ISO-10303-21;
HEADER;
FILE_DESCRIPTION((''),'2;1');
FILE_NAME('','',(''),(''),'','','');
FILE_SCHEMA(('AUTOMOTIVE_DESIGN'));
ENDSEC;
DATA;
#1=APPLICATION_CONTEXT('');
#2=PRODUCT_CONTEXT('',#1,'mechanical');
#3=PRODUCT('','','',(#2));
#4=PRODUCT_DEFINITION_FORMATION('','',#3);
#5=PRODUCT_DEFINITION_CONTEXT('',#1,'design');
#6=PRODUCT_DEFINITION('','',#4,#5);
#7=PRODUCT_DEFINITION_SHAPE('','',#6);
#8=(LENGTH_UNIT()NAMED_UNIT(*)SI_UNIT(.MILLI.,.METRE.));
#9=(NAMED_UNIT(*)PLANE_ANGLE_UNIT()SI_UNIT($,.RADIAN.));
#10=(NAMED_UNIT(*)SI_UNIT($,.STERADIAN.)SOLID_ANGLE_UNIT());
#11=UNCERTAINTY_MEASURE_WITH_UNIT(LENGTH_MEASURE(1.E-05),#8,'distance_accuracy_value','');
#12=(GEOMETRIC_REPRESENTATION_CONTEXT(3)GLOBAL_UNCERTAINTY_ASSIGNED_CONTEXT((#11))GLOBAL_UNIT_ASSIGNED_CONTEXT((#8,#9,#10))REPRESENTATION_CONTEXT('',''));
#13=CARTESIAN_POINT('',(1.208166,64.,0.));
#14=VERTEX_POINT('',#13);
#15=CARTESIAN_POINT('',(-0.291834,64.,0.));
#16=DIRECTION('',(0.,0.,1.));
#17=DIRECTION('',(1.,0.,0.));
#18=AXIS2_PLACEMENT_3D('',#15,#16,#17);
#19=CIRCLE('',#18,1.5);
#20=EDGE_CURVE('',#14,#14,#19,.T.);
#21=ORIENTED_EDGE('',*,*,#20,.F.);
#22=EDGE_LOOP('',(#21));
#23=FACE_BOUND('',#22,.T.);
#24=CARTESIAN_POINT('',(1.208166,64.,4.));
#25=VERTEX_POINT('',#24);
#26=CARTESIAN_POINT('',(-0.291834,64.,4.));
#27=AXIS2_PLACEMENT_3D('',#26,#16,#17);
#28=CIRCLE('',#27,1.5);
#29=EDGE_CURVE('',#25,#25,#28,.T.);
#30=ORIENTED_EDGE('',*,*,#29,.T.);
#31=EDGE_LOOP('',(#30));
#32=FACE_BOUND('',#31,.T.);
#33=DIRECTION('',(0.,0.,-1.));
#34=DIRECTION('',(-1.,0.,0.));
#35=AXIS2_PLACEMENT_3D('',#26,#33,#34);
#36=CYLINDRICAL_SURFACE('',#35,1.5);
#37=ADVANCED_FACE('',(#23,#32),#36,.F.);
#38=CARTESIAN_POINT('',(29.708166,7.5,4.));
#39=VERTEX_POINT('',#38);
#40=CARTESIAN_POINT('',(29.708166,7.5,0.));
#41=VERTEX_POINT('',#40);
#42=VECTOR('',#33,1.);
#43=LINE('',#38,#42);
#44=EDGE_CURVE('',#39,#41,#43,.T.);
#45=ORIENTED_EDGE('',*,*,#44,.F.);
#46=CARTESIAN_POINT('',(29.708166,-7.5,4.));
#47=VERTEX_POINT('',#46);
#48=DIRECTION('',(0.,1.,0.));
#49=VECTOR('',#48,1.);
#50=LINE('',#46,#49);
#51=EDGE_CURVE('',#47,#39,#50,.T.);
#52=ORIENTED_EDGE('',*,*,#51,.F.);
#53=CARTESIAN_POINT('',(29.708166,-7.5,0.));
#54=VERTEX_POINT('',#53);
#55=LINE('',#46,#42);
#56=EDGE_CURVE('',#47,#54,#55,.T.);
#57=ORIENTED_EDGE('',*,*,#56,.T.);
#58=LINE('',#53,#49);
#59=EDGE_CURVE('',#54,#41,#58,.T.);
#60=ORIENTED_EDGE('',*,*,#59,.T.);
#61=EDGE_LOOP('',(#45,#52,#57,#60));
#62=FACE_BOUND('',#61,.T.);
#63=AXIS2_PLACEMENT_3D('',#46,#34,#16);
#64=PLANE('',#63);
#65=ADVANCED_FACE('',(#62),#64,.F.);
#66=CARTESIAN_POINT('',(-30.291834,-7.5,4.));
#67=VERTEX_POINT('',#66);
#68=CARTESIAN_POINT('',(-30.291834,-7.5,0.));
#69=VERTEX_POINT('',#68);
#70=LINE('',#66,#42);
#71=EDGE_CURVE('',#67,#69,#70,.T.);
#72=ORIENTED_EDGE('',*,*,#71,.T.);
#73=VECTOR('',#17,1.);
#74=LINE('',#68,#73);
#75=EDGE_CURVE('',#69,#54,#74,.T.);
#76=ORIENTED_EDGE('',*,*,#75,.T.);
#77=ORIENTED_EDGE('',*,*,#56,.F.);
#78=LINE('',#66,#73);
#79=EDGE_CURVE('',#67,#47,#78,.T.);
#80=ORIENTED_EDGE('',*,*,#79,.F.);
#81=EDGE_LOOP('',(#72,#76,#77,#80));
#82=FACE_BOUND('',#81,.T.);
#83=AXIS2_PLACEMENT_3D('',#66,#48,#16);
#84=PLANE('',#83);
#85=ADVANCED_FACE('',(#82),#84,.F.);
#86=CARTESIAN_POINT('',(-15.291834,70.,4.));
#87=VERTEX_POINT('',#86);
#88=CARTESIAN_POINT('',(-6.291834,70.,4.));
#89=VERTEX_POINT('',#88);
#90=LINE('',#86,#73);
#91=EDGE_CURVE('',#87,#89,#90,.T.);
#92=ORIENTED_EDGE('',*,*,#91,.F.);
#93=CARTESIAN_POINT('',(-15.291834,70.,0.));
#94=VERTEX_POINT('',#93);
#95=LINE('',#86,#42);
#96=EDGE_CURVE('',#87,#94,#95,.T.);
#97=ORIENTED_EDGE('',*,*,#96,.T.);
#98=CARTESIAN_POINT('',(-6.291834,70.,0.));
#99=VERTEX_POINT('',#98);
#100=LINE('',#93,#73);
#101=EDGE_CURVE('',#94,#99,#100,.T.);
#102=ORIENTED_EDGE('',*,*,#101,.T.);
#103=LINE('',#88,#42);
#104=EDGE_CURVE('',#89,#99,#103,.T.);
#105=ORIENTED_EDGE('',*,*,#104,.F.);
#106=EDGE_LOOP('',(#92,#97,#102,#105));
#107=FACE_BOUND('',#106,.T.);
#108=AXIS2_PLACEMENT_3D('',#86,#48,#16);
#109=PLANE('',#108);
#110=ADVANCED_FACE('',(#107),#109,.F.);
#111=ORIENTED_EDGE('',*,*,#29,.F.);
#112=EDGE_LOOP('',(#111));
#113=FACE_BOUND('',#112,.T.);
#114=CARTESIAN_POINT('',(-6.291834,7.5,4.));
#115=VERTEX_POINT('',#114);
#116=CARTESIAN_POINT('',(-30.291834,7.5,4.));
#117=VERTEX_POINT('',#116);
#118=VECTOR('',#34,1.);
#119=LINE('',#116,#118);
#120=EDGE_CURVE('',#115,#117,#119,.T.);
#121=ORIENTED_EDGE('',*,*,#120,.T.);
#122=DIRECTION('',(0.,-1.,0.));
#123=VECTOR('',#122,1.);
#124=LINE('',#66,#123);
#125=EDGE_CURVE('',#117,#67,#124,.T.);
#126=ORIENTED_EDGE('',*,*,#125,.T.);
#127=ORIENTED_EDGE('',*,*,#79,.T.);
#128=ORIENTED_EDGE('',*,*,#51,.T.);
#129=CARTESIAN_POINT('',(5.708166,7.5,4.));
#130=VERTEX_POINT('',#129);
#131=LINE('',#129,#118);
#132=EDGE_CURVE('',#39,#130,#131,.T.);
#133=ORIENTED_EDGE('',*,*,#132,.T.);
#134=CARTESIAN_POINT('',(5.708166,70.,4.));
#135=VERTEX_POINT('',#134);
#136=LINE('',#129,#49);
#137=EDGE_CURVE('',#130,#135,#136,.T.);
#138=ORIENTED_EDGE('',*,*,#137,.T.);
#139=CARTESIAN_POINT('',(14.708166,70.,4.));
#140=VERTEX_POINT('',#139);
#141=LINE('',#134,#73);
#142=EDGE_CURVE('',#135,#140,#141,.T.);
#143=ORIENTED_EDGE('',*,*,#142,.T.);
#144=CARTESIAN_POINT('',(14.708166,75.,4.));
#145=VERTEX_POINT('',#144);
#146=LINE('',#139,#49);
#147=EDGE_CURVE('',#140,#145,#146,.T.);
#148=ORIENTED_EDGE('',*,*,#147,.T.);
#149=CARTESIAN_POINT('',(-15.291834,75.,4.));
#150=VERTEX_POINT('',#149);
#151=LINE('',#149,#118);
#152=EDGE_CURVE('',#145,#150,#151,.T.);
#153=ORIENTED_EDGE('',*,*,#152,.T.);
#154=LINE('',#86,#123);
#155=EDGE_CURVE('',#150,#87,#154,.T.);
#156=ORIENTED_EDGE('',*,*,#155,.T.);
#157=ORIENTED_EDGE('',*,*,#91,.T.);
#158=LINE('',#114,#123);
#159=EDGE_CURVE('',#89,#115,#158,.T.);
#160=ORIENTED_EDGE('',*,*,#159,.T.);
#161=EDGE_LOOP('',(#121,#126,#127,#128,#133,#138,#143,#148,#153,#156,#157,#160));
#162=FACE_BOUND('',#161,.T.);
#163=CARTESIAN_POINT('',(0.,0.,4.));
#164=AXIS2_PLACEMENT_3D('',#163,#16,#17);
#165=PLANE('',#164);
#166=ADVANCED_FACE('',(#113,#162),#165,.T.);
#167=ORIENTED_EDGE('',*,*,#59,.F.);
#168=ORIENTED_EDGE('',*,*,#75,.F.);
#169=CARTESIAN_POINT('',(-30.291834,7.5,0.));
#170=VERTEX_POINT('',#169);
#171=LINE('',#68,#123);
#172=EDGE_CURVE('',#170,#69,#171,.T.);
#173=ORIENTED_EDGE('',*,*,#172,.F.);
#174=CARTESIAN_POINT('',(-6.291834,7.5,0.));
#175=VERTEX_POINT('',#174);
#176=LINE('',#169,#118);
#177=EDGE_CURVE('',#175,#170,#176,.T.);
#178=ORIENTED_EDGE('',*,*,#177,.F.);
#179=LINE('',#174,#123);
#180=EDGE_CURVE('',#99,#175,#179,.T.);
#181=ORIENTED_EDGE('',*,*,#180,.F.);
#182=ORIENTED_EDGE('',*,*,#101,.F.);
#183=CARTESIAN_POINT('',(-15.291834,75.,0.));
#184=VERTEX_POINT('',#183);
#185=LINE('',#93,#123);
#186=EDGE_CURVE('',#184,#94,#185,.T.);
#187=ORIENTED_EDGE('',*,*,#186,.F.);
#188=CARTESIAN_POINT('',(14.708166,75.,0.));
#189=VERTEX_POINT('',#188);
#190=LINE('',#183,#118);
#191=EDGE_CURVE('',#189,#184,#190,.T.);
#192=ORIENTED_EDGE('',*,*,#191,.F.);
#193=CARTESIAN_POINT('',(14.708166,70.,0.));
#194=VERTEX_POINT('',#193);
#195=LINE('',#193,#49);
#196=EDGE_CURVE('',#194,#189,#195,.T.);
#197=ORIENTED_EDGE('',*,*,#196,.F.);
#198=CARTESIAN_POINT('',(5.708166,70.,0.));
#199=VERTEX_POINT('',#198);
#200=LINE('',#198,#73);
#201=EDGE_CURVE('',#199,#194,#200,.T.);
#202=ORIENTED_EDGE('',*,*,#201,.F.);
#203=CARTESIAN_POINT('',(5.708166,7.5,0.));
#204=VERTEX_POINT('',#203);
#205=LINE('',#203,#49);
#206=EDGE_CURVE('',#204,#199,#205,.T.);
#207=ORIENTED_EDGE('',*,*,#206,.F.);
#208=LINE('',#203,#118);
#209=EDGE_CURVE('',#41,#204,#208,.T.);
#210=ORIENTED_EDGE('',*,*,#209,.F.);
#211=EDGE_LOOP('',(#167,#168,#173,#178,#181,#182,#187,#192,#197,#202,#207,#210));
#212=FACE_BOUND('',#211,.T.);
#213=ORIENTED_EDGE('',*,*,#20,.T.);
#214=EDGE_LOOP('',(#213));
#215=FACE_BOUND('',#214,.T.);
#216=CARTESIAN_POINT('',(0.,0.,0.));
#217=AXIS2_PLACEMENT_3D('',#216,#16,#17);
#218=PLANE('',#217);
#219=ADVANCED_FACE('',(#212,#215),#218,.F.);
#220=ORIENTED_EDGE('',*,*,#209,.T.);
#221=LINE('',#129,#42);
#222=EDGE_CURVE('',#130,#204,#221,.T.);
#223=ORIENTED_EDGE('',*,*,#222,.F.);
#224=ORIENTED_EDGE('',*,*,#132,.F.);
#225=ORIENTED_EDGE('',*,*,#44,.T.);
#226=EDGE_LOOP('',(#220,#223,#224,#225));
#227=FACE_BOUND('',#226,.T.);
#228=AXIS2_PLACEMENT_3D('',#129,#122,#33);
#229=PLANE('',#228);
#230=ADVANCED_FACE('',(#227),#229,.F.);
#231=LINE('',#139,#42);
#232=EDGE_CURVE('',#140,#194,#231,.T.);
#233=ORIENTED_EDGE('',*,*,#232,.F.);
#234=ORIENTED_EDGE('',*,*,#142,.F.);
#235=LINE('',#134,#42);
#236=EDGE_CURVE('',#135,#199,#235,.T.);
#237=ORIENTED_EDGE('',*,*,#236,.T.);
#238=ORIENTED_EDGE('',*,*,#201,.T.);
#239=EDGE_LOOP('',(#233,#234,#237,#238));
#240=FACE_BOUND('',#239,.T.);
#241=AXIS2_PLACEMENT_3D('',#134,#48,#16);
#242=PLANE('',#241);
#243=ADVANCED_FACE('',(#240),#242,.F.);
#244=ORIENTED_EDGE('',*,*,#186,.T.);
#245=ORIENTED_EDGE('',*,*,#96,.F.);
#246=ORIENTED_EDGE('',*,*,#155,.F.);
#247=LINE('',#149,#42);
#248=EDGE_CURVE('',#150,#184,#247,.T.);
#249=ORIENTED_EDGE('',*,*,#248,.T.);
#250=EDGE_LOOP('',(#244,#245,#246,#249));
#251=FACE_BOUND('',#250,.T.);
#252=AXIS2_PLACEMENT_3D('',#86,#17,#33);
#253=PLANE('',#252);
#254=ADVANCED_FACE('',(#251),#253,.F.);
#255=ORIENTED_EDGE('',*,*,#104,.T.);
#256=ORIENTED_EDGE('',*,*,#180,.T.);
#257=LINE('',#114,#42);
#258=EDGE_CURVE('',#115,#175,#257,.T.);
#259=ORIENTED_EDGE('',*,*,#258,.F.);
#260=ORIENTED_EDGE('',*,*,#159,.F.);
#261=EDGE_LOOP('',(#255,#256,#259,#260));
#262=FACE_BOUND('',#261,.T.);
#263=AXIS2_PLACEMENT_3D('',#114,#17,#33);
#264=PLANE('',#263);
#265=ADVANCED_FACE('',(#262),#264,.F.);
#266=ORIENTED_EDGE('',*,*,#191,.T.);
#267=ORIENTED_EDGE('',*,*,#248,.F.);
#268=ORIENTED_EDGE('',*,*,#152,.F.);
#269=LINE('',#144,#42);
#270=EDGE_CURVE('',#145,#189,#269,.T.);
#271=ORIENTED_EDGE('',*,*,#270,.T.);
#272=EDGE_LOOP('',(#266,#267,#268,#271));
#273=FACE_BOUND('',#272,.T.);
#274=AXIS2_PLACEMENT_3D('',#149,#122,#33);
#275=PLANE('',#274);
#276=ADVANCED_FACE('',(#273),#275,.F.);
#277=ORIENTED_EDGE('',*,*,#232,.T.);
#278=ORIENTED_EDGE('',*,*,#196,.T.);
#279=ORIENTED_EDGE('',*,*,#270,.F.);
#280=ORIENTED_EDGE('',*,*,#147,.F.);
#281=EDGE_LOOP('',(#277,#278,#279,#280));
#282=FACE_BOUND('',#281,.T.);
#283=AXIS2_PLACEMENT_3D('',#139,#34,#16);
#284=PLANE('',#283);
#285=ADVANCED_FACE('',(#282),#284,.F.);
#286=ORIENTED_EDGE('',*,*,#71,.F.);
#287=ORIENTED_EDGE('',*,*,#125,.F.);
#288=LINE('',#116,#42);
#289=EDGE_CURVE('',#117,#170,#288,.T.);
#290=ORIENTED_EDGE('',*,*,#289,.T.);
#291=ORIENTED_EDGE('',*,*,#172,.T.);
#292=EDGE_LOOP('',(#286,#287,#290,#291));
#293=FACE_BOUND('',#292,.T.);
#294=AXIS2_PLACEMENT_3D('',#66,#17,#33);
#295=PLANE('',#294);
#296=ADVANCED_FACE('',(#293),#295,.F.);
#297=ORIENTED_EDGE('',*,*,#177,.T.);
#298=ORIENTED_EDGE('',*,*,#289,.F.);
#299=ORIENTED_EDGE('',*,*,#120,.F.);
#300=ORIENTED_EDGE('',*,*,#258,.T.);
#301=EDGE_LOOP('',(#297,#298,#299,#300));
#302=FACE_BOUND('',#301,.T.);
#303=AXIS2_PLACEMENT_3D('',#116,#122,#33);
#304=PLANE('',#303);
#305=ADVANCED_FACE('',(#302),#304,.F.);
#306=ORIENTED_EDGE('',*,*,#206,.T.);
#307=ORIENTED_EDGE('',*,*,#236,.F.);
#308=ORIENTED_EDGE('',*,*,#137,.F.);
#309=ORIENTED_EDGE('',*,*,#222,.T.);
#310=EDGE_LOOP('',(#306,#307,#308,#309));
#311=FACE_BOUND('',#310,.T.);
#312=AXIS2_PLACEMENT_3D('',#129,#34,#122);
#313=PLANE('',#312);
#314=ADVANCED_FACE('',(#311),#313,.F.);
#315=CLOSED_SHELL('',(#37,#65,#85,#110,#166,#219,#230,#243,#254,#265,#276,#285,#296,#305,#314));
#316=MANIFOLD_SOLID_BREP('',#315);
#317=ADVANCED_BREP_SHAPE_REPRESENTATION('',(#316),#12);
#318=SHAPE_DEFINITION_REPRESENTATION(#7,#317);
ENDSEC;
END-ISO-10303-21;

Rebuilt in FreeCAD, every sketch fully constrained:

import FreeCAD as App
import Part
import Sketcher

V = App.Vector

doc = App.newDocument("Part")
body = doc.addObject("PartDesign::Body", "Body")

sketch1 = body.newObject("Sketcher::SketchObject", "Sketch")
sketch1.AttachmentSupport = (doc.getObject("XY_Plane"), [""])
sketch1.MapMode = "FlatFace"
sketch1.addGeometry([
    Part.LineSegment(V(5.708166, 70, 0), V(14.708166, 70, 0)),
    Part.LineSegment(V(14.708166, 70, 0), V(14.708166, 75, 0)),
    Part.LineSegment(V(14.708166, 75, 0), V(-15.291834, 75, 0)),
    Part.LineSegment(V(-15.291834, 75, 0), V(-15.291834, 70, 0)),
    Part.LineSegment(V(-15.291834, 70, 0), V(-6.291834, 70, 0)),
    Part.LineSegment(V(-6.291834, 70, 0), V(-6.291834, 7.5, 0)),
    Part.LineSegment(V(-6.291834, 7.5, 0), V(-30.291834, 7.5, 0)),
    Part.LineSegment(V(-30.291834, 7.5, 0), V(-30.291834, -7.5, 0)),
    Part.LineSegment(V(-30.291834, -7.5, 0), V(29.708166, -7.5, 0)),
    Part.LineSegment(V(29.708166, -7.5, 0), V(29.708166, 7.5, 0)),
    Part.LineSegment(V(29.708166, 7.5, 0), V(5.708166, 7.5, 0)),
    Part.LineSegment(V(5.708166, 7.5, 0), V(5.708166, 70, 0)),
    Part.Circle(V(-0.291834, 64, 0), V(0, 0, 1), 1.5),
], False)
sketch1.addConstraint([
    Sketcher.Constraint("Coincident", 0, 2, 1, 1),
    Sketcher.Constraint("Coincident", 1, 2, 2, 1),
    Sketcher.Constraint("Coincident", 2, 2, 3, 1),
    Sketcher.Constraint("Coincident", 3, 2, 4, 1),
    Sketcher.Constraint("Coincident", 4, 2, 5, 1),
    Sketcher.Constraint("Coincident", 5, 2, 6, 1),
    Sketcher.Constraint("Coincident", 6, 2, 7, 1),
    Sketcher.Constraint("Coincident", 7, 2, 8, 1),
    Sketcher.Constraint("Coincident", 8, 2, 9, 1),
    Sketcher.Constraint("Coincident", 9, 2, 10, 1),
    Sketcher.Constraint("Coincident", 10, 2, 11, 1),
    Sketcher.Constraint("Coincident", 11, 2, 0, 1),
    Sketcher.Constraint("Horizontal", 0),
    Sketcher.Constraint("Vertical", 1),
    Sketcher.Constraint("Horizontal", 2),
    Sketcher.Constraint("Vertical", 3),
    Sketcher.Constraint("Horizontal", 4),
    Sketcher.Constraint("Vertical", 5),
    Sketcher.Constraint("Horizontal", 6),
    Sketcher.Constraint("Vertical", 7),
    Sketcher.Constraint("Horizontal", 8),
    Sketcher.Constraint("Vertical", 9),
    Sketcher.Constraint("Horizontal", 10),
    Sketcher.Constraint("Vertical", 11),
    Sketcher.Constraint("Horizontal", 0, 2, 3, 2),
    Sketcher.Constraint("Horizontal", 6, 2, 9, 2),
    Sketcher.Constraint("Equal", 0, 4),
    Sketcher.Constraint("Equal", 6, 10),
    Sketcher.Constraint("Diameter", 12, 3.0),
    Sketcher.Constraint("DistanceX", 0, 1, 0, 2, 9.0),
    Sketcher.Constraint("DistanceX", 2, 2, 2, 1, 30.0),
    Sketcher.Constraint("DistanceX", 6, 2, 6, 1, 24.0),
    Sketcher.Constraint("DistanceY", 1, 1, 1, 2, 5.0),
    Sketcher.Constraint("DistanceY", 7, 2, 7, 1, 15.0),
    Sketcher.Constraint("DistanceY", 5, 2, 5, 1, 62.5),
    Sketcher.Constraint("DistanceY", -1, 1, 12, 3, 64.0),
    Sketcher.Constraint("DistanceY", -1, 1, 0, 2, 70.0),
    Sketcher.Constraint("DistanceX", 12, 3, 0, 2, 15.0),
    Sketcher.Constraint("DistanceX", 12, 3, -1, 1, 0.291834),
])
pad1 = body.newObject("PartDesign::Pad", "Pad")
pad1.Profile = sketch1
pad1.Length = 4

doc.recompute()
